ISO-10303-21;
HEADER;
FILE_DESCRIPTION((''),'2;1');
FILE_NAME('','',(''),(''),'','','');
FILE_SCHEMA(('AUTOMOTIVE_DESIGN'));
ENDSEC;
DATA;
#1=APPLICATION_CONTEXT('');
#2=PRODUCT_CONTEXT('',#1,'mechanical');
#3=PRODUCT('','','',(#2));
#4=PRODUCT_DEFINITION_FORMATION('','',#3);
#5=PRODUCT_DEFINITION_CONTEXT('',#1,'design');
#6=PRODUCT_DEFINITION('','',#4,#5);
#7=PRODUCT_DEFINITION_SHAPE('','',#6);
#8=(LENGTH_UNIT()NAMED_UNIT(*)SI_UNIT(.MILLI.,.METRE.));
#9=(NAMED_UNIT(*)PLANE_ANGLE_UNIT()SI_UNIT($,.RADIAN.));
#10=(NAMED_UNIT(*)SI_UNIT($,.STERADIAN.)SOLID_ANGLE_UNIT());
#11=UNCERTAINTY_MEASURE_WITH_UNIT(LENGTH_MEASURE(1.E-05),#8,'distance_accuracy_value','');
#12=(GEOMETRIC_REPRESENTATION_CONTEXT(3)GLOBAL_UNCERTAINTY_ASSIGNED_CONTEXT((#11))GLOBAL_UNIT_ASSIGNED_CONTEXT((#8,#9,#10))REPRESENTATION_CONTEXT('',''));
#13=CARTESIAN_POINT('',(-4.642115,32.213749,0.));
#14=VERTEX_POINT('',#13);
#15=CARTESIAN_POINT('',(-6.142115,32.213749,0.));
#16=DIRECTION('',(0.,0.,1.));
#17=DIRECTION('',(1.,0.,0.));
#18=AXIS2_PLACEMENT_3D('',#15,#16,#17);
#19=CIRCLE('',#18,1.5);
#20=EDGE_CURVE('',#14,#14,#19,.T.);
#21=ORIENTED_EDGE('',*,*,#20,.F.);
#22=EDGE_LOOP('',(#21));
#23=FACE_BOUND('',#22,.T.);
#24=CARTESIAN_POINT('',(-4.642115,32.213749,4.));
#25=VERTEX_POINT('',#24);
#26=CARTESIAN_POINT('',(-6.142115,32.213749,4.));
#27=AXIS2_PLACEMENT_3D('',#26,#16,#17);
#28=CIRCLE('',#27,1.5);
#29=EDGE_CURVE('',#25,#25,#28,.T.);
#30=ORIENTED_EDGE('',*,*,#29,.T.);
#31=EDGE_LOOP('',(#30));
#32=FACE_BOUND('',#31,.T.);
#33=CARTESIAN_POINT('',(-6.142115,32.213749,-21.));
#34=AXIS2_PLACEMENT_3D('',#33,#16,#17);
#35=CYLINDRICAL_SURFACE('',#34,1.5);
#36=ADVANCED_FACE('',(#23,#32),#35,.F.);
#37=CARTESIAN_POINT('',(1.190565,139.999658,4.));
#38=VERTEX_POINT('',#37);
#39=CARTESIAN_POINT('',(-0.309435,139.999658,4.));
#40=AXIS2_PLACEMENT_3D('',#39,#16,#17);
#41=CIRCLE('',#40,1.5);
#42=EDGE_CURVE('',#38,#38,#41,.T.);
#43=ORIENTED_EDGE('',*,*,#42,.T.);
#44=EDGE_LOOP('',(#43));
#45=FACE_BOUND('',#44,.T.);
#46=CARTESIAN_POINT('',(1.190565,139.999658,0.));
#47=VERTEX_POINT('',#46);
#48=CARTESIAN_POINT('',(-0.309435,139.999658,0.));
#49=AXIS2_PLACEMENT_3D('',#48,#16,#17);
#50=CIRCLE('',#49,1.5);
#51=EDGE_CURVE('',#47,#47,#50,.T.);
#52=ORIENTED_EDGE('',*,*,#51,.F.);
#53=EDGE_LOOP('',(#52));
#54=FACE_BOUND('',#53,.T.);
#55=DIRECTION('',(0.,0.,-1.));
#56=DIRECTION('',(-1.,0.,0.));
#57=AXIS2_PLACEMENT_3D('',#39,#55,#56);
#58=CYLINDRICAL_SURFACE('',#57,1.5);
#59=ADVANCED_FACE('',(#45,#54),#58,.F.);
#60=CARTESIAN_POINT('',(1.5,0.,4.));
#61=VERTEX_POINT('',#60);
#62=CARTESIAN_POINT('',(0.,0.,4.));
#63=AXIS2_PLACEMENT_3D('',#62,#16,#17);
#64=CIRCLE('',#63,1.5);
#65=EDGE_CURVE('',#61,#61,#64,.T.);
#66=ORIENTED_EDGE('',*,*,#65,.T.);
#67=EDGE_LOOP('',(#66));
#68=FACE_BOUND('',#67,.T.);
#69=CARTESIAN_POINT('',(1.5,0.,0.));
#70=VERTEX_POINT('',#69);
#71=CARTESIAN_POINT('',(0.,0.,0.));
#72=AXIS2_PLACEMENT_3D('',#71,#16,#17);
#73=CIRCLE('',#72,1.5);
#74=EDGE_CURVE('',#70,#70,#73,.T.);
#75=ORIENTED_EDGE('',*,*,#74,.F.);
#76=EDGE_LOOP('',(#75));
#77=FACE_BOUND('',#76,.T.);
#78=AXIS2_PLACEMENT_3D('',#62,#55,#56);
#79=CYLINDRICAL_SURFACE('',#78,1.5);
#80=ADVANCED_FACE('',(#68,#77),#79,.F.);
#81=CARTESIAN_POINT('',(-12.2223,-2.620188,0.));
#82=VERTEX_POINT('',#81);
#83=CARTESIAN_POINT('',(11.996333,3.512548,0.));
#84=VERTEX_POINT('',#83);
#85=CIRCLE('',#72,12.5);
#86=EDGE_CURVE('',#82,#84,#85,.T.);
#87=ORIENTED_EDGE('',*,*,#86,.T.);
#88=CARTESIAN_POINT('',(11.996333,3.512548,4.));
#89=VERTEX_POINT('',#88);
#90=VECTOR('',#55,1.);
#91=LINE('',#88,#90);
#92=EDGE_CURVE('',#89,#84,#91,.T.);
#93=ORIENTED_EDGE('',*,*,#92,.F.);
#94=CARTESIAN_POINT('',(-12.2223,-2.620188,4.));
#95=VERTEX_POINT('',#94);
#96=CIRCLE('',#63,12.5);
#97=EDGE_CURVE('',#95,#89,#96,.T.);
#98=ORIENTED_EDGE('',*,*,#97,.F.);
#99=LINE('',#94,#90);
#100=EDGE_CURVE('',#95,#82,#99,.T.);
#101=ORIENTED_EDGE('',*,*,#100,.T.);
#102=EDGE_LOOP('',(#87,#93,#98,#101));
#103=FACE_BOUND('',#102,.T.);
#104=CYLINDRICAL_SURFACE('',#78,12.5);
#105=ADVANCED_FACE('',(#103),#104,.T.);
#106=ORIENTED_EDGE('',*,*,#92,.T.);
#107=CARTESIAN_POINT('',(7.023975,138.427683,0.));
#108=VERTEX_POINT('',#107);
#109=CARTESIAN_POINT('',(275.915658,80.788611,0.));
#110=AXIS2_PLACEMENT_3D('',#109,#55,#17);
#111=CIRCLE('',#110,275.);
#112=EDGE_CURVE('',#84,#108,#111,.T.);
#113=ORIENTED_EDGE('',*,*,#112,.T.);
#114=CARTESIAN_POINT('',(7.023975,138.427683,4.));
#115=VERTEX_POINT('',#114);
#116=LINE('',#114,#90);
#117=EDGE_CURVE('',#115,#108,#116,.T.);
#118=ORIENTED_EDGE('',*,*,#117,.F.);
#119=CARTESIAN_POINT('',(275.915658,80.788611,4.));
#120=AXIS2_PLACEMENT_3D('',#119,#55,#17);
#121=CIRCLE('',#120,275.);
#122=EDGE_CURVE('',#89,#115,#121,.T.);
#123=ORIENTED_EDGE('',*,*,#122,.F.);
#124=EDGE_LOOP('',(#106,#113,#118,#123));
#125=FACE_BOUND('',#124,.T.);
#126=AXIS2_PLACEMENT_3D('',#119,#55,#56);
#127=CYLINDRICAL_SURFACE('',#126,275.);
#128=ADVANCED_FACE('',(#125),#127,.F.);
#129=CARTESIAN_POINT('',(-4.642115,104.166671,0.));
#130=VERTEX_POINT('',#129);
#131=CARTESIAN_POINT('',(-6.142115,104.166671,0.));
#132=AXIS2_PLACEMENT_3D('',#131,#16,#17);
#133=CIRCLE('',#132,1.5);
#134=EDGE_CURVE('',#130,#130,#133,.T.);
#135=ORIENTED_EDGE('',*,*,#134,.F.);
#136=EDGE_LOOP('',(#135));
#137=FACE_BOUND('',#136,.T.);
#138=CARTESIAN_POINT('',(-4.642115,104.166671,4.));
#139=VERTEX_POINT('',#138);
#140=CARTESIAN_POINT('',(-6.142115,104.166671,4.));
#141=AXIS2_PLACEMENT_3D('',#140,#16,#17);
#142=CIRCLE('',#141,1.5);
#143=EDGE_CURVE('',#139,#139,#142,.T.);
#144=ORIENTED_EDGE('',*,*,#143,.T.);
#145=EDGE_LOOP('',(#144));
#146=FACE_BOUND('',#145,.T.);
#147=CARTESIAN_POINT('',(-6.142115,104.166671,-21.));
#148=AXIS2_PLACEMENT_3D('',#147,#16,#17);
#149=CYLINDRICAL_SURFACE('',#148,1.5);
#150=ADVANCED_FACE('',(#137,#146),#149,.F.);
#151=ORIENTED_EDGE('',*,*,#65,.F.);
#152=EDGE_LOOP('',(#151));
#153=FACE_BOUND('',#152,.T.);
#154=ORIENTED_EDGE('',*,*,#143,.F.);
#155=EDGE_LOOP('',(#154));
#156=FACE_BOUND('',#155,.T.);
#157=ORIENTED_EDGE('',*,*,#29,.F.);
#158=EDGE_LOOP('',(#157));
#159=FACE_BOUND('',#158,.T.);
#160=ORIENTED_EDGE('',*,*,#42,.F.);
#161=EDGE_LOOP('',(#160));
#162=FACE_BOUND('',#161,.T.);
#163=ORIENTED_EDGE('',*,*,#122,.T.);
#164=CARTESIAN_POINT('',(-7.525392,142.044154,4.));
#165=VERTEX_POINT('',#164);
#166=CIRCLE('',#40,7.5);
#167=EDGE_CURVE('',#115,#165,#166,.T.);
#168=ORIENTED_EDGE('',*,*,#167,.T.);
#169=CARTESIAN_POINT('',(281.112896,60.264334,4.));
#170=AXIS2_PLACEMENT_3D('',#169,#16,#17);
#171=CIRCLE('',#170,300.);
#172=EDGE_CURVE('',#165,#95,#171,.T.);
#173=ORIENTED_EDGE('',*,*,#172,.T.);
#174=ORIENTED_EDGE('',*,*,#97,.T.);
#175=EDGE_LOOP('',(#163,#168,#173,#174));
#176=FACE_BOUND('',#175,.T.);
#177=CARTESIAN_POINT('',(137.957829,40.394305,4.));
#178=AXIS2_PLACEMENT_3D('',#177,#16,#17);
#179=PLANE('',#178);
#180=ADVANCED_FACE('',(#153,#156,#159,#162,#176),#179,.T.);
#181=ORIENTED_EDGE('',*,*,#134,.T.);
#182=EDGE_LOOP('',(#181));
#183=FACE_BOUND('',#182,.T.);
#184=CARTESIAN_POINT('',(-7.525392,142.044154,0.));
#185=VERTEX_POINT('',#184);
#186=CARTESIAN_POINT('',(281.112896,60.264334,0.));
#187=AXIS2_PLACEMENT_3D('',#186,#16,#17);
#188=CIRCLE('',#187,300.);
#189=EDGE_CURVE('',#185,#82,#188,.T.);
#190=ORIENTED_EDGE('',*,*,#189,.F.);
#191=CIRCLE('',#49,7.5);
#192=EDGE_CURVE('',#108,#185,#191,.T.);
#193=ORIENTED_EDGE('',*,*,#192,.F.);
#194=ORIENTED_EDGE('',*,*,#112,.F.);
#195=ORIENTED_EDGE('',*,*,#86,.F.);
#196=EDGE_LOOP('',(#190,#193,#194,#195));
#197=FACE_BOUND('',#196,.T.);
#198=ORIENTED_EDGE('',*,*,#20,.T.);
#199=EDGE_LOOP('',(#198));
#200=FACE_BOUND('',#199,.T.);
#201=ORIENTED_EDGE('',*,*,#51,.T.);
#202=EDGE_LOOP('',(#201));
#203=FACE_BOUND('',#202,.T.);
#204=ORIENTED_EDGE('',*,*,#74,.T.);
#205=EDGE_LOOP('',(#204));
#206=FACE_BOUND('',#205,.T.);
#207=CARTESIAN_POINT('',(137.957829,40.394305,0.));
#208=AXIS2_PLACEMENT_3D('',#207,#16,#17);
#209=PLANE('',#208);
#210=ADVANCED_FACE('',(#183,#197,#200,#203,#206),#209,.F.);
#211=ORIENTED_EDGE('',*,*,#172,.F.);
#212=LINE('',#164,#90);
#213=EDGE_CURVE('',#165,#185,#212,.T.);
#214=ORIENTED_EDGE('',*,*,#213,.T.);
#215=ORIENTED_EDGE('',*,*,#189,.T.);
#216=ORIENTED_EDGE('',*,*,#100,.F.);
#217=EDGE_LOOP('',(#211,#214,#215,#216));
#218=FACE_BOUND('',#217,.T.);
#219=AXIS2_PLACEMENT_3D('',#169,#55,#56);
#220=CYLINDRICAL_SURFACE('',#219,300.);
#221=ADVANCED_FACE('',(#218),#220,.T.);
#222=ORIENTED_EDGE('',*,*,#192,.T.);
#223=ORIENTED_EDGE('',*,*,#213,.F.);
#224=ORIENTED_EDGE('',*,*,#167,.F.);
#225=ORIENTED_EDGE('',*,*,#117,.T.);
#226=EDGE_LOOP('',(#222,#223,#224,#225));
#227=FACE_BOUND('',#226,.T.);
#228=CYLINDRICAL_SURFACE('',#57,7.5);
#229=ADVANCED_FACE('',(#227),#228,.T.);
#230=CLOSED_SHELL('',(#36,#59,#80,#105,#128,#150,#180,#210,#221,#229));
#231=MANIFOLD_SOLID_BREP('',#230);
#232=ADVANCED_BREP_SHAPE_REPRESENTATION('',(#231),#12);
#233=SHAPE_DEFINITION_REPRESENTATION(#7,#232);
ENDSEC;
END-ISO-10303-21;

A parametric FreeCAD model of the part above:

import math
import FreeCAD as App
import Part
import Sketcher
from FreeCAD import Vector

doc = App.newDocument("Part")
params = doc.addObject("Spreadsheet::Sheet", "Params")
for row, (alias, value) in enumerate([
    ("sketch1_diameter", "3 mm"),
    ("sketch1_radius", "300 mm"),
    ("sketch1_radius2", "275 mm"),
    ("sketch1_radius3", "7.5 mm"),
    ("sketch1_radius4", "12.5 mm"),
    ("pad1_length", "4 mm"),
    ("sketch2_diameter", "3 mm"),
    ("pocket1_length", "25 mm"),
], start=1):
    params.set(f"A{row}", alias)
    params.set(f"B{row}", "=" + value)
    params.setAlias(f"B{row}", alias)

body = doc.addObject("PartDesign::Body", "Body")

# Sketch on XY plane
sketch1 = doc.addObject("Sketcher::SketchObject", "Sketch")
body.addObject(sketch1)
sketch1.AttachmentSupport = (doc.XY_Plane, [""])
sketch1.MapMode = "FlatFace"
sketch1.addGeometry([
    Part.ArcOfCircle(Part.Circle(Vector(-0.3, 140, 0), Vector(0, 0, 1), 7.5), math.radians(-12), math.radians(164)),  # 0
    Part.ArcOfCircle(Part.Circle(Vector(281.1, 60.3, 0), Vector(0, 0, 1), 300), math.radians(164), math.radians(192)),  # 1
    Part.ArcOfCircle(Part.Circle(Vector(0, 0, 0), Vector(0, 0, 1), 12.5), math.radians(-168), math.radians(16)),  # 2
    Part.ArcOfCircle(Part.Circle(Vector(275.9, 80.8, 0), Vector(0, 0, 1), 275), math.radians(168), math.radians(196)),  # 3
    Part.Circle(Vector(0, 0, 0), Vector(0, 0, 1), 1.5),  # 4
    Part.Circle(Vector(-0.3, 140, 0), Vector(0, 0, 1), 1.5),  # 5
], False)
sketch1.addConstraint([
    Sketcher.Constraint("Tangent", 0, 2, 1, 1),
    Sketcher.Constraint("Tangent", 1, 2, 2, 1),
    Sketcher.Constraint("Tangent", 2, 2, 3, 2),
    Sketcher.Constraint("Tangent", 3, 1, 0, 1),
    Sketcher.Constraint("Coincident", 2, 3, -1, 1),
    Sketcher.Constraint("Coincident", 4, 3, -1, 1),
    Sketcher.Constraint("Coincident", 5, 3, 0, 3),
    Sketcher.Constraint("Equal", 4, 5),
    Sketcher.Constraint("Diameter", 4, 3.0),
    Sketcher.Constraint("Radius", 1, 300.0),
    Sketcher.Constraint("Radius", 3, 275.0),
    Sketcher.Constraint("Radius", 0, 7.5),
    Sketcher.Constraint("Radius", 2, 12.5),
    Sketcher.Constraint("DistanceY", -1, 1, 0, 3, 139.999658),
    Sketcher.Constraint("DistanceX", -1, 1, 3, 3, 275.915658),
])
sketch1.setExpression("Constraints[8]", "Params.sketch1_diameter")
sketch1.setExpression("Constraints[9]", "Params.sketch1_radius")
sketch1.setExpression("Constraints[10]", "Params.sketch1_radius2")
sketch1.setExpression("Constraints[11]", "Params.sketch1_radius3")
sketch1.setExpression("Constraints[12]", "Params.sketch1_radius4")
pad1 = doc.addObject("PartDesign::Pad", "Pad")
body.addObject(pad1)
pad1.Profile = sketch1
pad1.setExpression("Length", "Params.pad1_length")

# Sketch on XY plane
sketch2 = doc.addObject("Sketcher::SketchObject", "Sketch001")
body.addObject(sketch2)
sketch2.AttachmentSupport = (doc.XY_Plane, [""])
sketch2.MapMode = "FlatFace"
sketch2.AttachmentOffset = App.Placement(Vector(0, 0, 4), App.Rotation())
sketch2.addGeometry([
    Part.Circle(Vector(-6.1, 104.2, 0), Vector(0, 0, 1), 1.5),
    Part.Circle(Vector(-6.1, 32.2, 0), Vector(0, 0, 1), 1.5),
], False)
sketch2.addConstraint([
    Sketcher.Constraint("Equal", 0, 1),
    Sketcher.Constraint("Vertical", 0, 3, 1, 3),
    Sketcher.Constraint("Diameter", 0, 3.0),
    Sketcher.Constraint("DistanceY", -1, 1, 0, 3, 104.166671),
    Sketcher.Constraint("DistanceY", -1, 1, 1, 3, 32.213749),
    Sketcher.Constraint("DistanceX", 0, 3, -1, 1, 6.142115),
])
sketch2.setExpression("Constraints[2]", "Params.sketch2_diameter")
pocket1 = doc.addObject("PartDesign::Pocket", "Pocket")
body.addObject(pocket1)
pocket1.Profile = sketch2
pocket1.setExpression("Length", "Params.pocket1_length")

doc.recompute()
